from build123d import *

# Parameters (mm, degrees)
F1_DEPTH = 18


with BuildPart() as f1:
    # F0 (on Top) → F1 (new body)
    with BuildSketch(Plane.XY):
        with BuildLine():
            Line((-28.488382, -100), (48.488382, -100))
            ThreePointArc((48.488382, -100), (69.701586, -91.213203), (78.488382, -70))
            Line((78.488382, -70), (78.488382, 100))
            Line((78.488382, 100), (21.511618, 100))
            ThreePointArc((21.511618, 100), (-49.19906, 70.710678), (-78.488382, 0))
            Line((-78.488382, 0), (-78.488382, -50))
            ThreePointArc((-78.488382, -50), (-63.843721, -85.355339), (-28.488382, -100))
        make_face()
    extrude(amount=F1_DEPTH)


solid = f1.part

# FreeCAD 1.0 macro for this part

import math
import FreeCAD as App
import Part
import Sketcher

V = App.Vector
Q = App.Units.Quantity

doc = App.newDocument("Part")
body = doc.addObject("PartDesign::Body", "Body")

# Sketch on XY plane
sketch1 = doc.addObject("Sketcher::SketchObject", "Sketch")
body.addObject(sketch1)
sketch1.AttachmentSupport = (doc.XY_Plane, [""])
sketch1.MapMode = "FlatFace"
sketch1.addGeometry([
    Part.LineSegment(V(-28, -100, 0), V(48, -100, 0)),  # 0
    Part.ArcOfCircle(Part.Circle(V(48, -70, 0), V(0, 0, 1), 30), math.radians(-90), math.radians(0)),  # 1
    Part.LineSegment(V(78, -70, 0), V(78, 100, 0)),  # 2
    Part.LineSegment(V(78, 100, 0), V(22, 100, 0)),  # 3
    Part.ArcOfCircle(Part.Circle(V(22, 0, 0), V(0, 0, 1), 100), math.radians(90), math.radians(180)),  # 4
    Part.LineSegment(V(-78, 0, 0), V(-78, -50, 0)),  # 5
    Part.ArcOfCircle(Part.Circle(V(-28, -50, 0), V(0, 0, 1), 50), math.radians(-180), math.radians(-90)),  # 6
], False)
sketch1.addConstraint([
    Sketcher.Constraint("Tangent", 0, 2, 1, 1),
    Sketcher.Constraint("Tangent", 1, 2, 2, 1),
    Sketcher.Constraint("Coincident", 2, 2, 3, 1),
    Sketcher.Constraint("Tangent", 3, 2, 4, 1),
    Sketcher.Constraint("Tangent", 4, 2, 5, 1),
    Sketcher.Constraint("Tangent", 5, 2, 6, 1),
    Sketcher.Constraint("Tangent", 6, 2, 0, 1),
    Sketcher.Constraint("Horizontal", 0),
    Sketcher.Constraint("Vertical", 2),
    Sketcher.Constraint("Horizontal", 3),
    Sketcher.Constraint("Vertical", 5),
    Sketcher.Constraint("PointOnObject", 4, 3, -1),
    Sketcher.Constraint("Radius", 1, Q("30 mm")),
    Sketcher.Constraint("Radius", 4, Q("100 mm")),
    Sketcher.Constraint("Radius", 6, Q("50 mm")),
    Sketcher.Constraint("DistanceY", 2, 1, 2, 2, Q("170 mm")),
    Sketcher.Constraint("DistanceX", 0, 1, 0, 2, Q("76.976764 mm")),
    Sketcher.Constraint("DistanceX", -1, 1, 4, 3, Q("21.511618 mm")),
])
pad1 = doc.addObject("PartDesign::Pad", "Pad")
body.addObject(pad1)
pad1.Profile = sketch1
pad1.Length = 18

doc.recompute()
